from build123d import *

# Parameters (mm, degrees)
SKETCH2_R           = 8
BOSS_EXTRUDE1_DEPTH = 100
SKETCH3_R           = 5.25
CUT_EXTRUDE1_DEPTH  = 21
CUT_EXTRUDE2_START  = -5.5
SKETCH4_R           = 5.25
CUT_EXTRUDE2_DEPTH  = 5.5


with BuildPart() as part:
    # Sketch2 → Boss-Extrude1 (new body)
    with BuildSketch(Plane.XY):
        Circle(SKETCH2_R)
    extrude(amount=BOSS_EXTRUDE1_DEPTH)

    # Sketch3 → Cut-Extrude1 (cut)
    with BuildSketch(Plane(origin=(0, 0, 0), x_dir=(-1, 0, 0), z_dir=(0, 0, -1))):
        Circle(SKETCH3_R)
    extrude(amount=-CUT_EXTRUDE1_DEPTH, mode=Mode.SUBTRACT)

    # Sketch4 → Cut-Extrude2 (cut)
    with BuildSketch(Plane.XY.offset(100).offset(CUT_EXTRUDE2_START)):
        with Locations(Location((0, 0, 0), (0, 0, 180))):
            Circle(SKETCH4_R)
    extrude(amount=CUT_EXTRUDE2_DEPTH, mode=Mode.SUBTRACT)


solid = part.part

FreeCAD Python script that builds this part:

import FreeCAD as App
import Part
import Sketcher
from FreeCAD import Vector
Q = App.Units.Quantity

doc = App.newDocument("Part")
body = doc.addObject("PartDesign::Body", "Body")

sketch1 = body.newObject("Sketcher::SketchObject", "Sketch")
sketch1.AttachmentSupport = (doc.getObject("XY_Plane"), [""])
sketch1.MapMode = "FlatFace"
sketch1.addGeometry(Part.Circle(Vector(0, 0, 0), Vector(0, 0, 1), 8), False)
sketch1.addConstraint([
    Sketcher.Constraint("Coincident", 0, 3, -1, 1),
    Sketcher.Constraint("Diameter", 0, Q("16 mm")),
])
pad1 = body.newObject("PartDesign::Pad", "Pad")
pad1.Profile = sketch1
pad1.Length = 100

sketch2 = body.newObject("Sketcher::SketchObject", "Sketch001")
sketch2.AttachmentSupport = (doc.getObject("XY_Plane"), [""])
sketch2.MapMode = "FlatFace"
sketch2.addGeometry(Part.Circle(Vector(0, 0, 0), Vector(0, 0, 1), 5), False)
sketch2.addConstraint([
    Sketcher.Constraint("Coincident", 0, 3, -1, 1),
    Sketcher.Constraint("Diameter", 0, Q("10.5 mm")),
])
pocket1 = body.newObject("PartDesign::Pocket", "Pocket")
pocket1.Profile = sketch2
pocket1.Length = 21
pocket1.Reversed = True

sketch3 = body.newObject("Sketcher::SketchObject", "Sketch002")
sketch3.AttachmentSupport = (doc.getObject("XY_Plane"), [""])
sketch3.MapMode = "FlatFace"
sketch3.AttachmentOffset = App.Placement(Vector(0, 0, 94.5), App.Rotation())
sketch3.addGeometry(Part.Circle(Vector(0, 0, 0), Vector(0, 0, 1), 5), False)
sketch3.addConstraint([
    Sketcher.Constraint("Coincident", 0, 3, -1, 1),
    Sketcher.Constraint("Diameter", 0, Q("10.5 mm")),
])
pocket2 = body.newObject("PartDesign::Pocket", "Pocket001")
pocket2.Profile = sketch3
pocket2.Length = 5.5
pocket2.Reversed = True

doc.recompute()
